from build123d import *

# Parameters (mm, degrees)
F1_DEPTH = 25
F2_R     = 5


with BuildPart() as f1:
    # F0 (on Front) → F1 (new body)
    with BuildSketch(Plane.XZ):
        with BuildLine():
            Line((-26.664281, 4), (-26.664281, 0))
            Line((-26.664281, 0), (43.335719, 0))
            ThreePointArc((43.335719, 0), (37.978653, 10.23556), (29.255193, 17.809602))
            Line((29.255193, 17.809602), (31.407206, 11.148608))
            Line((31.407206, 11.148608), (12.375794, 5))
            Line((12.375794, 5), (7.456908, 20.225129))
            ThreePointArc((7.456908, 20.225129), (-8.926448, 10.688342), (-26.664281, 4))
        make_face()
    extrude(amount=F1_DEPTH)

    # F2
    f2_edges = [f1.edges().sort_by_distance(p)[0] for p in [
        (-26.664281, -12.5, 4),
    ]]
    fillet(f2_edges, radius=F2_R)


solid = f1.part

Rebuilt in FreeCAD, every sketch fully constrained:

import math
import FreeCAD as App
import Part
import Sketcher
from FreeCAD import Vector
Q = App.Units.Quantity


def edges_at(feature, points):
    """Names of the edges that pass closest to the given points."""
    edges = feature.Shape.Edges
    near = lambda p: min(range(len(edges)), key=lambda i: edges[i].distToShape(Part.Vertex(*p))[0])
    return sorted({f"Edge{near(p) + 1}" for p in points})

doc = App.newDocument("Part")
body = doc.addObject("PartDesign::Body", "Body")

# Sketch on XZ plane
sketch1 = body.newObject("Sketcher::SketchObject", "Sketch")
sketch1.AttachmentSupport = (doc.getObject("XZ_Plane"), [""])
sketch1.MapMode = "FlatFace"
sketch1.addGeometry([
    Part.LineSegment(Vector(-26.7, 4, 0), Vector(-26.7, 0, 0)),  # 0
    Part.LineSegment(Vector(-26.7, 0, 0), Vector(43.3, 0, 0)),  # 1
    Part.ArcOfCircle(Part.Circle(Vector(13.6, -9.1, 0), Vector(0, 0, 1), 31.1), math.radians(17), math.radians(60)),  # 2
    Part.LineSegment(Vector(29.3, 17.8, 0), Vector(31.4, 11.1, 0)),  # 3
    Part.LineSegment(Vector(31.4, 11.1, 0), Vector(12.4, 5, 0)),  # 4
    Part.LineSegment(Vector(12.4, 5, 0), Vector(7.5, 20.2, 0)),  # 5
    Part.ArcOfCircle(Part.Circle(Vector(-57.9, 113.6, 0), Vector(0, 0, 1), 113.9), math.radians(-74.11), math.radians(-55.02)),  # 6
], False)
sketch1.addConstraint([
    Sketcher.Constraint("Coincident", 0, 2, 1, 1),
    Sketcher.Constraint("Coincident", 1, 2, 2, 1),
    Sketcher.Constraint("Coincident", 2, 2, 3, 1),
    Sketcher.Constraint("Coincident", 3, 2, 4, 1),
    Sketcher.Constraint("Coincident", 4, 2, 5, 1),
    Sketcher.Constraint("Coincident", 5, 2, 6, 2),
    Sketcher.Constraint("Coincident", 6, 1, 0, 1),
    Sketcher.Constraint("Vertical", 0),
    Sketcher.Constraint("Horizontal", 1),
    Sketcher.Constraint("PointOnObject", 0, 2, -1),
    Sketcher.Constraint("Perpendicular", 3, 4),
    Sketcher.Constraint("Perpendicular", 4, 5),
    Sketcher.Constraint("DistanceX", 1, 1, 1, 2, Q("70 mm")),
    Sketcher.Constraint("DistanceY", 0, 2, 0, 1, Q("4 mm")),
    Sketcher.Constraint("Distance", 3, Q("7 mm")),
    Sketcher.Constraint("Distance", 4, Q("20.000001 mm")),
    Sketcher.Constraint("Distance", 5, Q("16 mm")),
    Sketcher.Constraint("DistanceY", -1, 1, 4, 2, Q("5 mm")),
    Sketcher.Constraint("Radius", 6, Q("113.936291 mm")),
    Sketcher.Constraint("Radius", 2, Q("31.100394 mm")),
    Sketcher.Constraint("DistanceX", 6, 3, -1, 1, Q("57.854801 mm")),
    Sketcher.Constraint("DistanceX", 4, 2, 2, 2, Q("16.879399 mm")),
    Sketcher.Constraint("DistanceX", -1, 1, 2, 3, Q("13.582029 mm")),
])
pad1 = body.newObject("PartDesign::Pad", "Pad")
pad1.Profile = sketch1
pad1.Length = 25
doc.recompute()

fillet = body.newObject("PartDesign::Fillet", "Fillet")
fillet.Base = (pad1, edges_at(pad1, [(-26.664, -12.5, 4)]))
fillet.Radius = 5

doc.recompute()
